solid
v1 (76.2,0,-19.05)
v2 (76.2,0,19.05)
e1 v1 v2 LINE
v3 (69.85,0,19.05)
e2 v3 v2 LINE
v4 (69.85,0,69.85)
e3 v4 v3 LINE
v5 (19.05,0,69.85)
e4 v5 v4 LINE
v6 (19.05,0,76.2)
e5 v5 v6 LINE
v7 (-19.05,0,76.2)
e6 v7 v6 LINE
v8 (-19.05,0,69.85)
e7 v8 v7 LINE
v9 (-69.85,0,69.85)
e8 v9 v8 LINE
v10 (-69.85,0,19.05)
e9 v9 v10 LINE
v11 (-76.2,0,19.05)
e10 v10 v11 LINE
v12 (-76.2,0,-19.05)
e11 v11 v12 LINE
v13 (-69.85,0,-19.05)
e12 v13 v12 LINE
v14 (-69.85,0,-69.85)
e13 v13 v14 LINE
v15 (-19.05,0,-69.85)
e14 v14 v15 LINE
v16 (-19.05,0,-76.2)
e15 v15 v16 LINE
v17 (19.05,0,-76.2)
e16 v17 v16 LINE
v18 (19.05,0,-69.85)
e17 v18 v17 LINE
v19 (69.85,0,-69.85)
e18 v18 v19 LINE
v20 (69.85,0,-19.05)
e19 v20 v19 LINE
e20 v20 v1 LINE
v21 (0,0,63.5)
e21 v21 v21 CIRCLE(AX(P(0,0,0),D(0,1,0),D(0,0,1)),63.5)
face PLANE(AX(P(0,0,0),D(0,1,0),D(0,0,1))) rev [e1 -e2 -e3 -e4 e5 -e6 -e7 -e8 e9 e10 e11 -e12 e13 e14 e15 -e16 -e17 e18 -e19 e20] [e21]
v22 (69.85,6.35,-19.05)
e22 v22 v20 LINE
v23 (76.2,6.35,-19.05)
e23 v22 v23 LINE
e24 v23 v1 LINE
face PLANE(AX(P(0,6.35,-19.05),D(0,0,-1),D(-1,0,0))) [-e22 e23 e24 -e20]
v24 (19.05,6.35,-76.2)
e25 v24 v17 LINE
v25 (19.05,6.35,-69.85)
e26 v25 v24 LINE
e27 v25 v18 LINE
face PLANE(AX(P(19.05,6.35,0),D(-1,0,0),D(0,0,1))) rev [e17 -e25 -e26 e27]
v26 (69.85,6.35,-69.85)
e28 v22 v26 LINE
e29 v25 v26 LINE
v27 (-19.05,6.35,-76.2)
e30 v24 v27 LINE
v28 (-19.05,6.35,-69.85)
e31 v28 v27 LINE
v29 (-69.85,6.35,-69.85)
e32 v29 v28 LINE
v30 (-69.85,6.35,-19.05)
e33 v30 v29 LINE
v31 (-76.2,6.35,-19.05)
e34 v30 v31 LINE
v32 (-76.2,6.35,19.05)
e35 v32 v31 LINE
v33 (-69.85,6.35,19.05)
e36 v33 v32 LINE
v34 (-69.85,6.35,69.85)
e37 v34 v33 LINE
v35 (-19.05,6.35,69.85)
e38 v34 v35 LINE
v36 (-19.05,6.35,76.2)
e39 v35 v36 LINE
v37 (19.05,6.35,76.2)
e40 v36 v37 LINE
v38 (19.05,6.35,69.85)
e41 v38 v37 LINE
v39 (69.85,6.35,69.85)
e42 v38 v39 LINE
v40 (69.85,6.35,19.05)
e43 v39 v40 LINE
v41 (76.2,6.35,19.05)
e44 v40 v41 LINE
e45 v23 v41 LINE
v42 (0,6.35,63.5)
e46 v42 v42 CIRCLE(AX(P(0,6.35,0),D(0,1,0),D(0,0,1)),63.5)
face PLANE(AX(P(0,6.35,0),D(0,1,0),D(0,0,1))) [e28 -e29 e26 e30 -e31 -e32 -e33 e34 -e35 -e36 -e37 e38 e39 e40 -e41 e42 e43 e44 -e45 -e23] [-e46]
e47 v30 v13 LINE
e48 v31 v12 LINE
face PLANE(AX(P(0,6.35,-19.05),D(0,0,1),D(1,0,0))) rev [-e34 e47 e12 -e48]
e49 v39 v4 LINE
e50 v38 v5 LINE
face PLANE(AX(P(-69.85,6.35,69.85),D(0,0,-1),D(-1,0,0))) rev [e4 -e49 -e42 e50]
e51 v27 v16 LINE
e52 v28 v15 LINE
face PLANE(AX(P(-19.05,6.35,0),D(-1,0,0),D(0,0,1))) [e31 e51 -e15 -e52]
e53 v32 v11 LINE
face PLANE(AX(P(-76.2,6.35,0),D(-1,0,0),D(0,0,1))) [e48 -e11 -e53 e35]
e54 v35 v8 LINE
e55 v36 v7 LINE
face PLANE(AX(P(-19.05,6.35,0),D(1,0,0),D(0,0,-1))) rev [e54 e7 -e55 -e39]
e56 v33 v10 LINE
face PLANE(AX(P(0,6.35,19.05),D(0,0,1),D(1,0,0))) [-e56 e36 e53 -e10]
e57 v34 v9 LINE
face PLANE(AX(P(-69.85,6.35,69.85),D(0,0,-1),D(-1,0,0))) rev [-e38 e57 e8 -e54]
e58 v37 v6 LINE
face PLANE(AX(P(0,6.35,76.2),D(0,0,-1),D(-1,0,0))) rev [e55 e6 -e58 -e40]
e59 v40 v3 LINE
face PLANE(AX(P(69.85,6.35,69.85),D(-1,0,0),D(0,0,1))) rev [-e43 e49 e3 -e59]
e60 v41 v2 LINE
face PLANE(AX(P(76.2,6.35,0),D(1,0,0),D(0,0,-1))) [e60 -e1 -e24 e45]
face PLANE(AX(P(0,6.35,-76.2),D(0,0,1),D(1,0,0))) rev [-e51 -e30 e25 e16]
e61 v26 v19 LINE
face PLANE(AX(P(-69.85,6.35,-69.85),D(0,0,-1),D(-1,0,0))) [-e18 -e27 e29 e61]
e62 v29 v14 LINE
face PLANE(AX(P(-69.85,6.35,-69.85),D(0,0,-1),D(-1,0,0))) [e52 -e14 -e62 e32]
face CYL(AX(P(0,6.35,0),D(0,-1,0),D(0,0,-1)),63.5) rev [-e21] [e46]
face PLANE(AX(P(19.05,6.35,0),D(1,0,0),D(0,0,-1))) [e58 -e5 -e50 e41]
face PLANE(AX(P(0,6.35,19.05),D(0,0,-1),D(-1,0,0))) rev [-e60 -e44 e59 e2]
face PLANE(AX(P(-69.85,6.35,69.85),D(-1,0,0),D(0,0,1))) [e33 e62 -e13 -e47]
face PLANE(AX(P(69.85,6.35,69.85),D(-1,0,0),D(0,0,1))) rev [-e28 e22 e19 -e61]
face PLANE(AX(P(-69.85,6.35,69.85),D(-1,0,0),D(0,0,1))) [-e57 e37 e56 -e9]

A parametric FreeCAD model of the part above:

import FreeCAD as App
import Part
import Sketcher
Q = App.Units.Quantity

doc = App.newDocument("Part")
params = doc.addObject("Spreadsheet::Sheet", "Params")
for row, (alias, value) in enumerate([
    ("sketch1_diameter", "5 in"),
    ("sketch1_width", "5.5 in"),
    ("pad1_length", "0.25 in"),
    ("sketch2_width", "1.5 in"),
    ("pad2_length", "0.25 in"),
], start=1):
    params.set(f"A{row}", alias)
    params.set(f"B{row}", "=" + value)
    params.setAlias(f"B{row}", alias)

body = doc.addObject("PartDesign::Body", "Body")

sketch1 = body.newObject("Sketcher::SketchObject", "Sketch")
sketch1.AttachmentSupport = (doc.getObject("XZ_Plane"), [""])
sketch1.MapMode = "FlatFace"
sketch1.addGeometry(Part.LineSegment(App.Vector(-69.85, -69.85, 0), App.Vector(-69.85, 69.85, 0)), False)
sketch1.addGeometry(Part.LineSegment(App.Vector(-69.85, 69.85, 0), App.Vector(69.85, 69.85, 0)), False)
sketch1.addGeometry(Part.LineSegment(App.Vector(69.85, 69.85, 0), App.Vector(69.85, -69.85, 0)), False)
sketch1.addGeometry(Part.LineSegment(App.Vector(69.85, -69.85, 0), App.Vector(-69.85, -69.85, 0)), False)
sketch1.addGeometry(Part.Circle(App.Vector(0, 0, 0), App.Vector(0, 0, 1), 63.5), False)
sketch1.addConstraint(Sketcher.Constraint("Coincident", 0, 2, 1, 1))
sketch1.addConstraint(Sketcher.Constraint("Coincident", 1, 2, 2, 1))
sketch1.addConstraint(Sketcher.Constraint("Coincident", 2, 2, 3, 1))
sketch1.addConstraint(Sketcher.Constraint("Coincident", 3, 2, 0, 1))
sketch1.addConstraint(Sketcher.Constraint("Vertical", 0))
sketch1.addConstraint(Sketcher.Constraint("Horizontal", 1))
sketch1.addConstraint(Sketcher.Constraint("Vertical", 2))
sketch1.addConstraint(Sketcher.Constraint("Horizontal", 3))
sketch1.addConstraint(Sketcher.Constraint("Coincident", 4, 3, -1, 1))
sketch1.addConstraint(Sketcher.Constraint("Symmetric", 0, 2, 2, 2, -1, 1))
sketch1.addConstraint(Sketcher.Constraint("Equal", 3, 0))
sketch1.addConstraint(Sketcher.Constraint("Diameter", 4, Q("5 in")))
sketch1.addConstraint(Sketcher.Constraint("DistanceX", 1, 1, 1, 2, Q("5.5 in")))
sketch1.setExpression("Constraints[11]", "Params.sketch1_diameter")
sketch1.setExpression("Constraints[12]", "Params.sketch1_width")
pad1 = body.newObject("PartDesign::Pad", "Pad")
pad1.Profile = sketch1
pad1.setExpression("Length", "Params.pad1_length")
pad1.Reversed = True

sketch2 = body.newObject("Sketcher::SketchObject", "Sketch001")
sketch2.AttachmentSupport = (doc.getObject("XZ_Plane"), [""])
sketch2.MapMode = "FlatFace"
sketch2.addGeometry(Part.LineSegment(App.Vector(-76.2, -19.05, 0), App.Vector(-76.2, 19.05, 0)), False)
sketch2.addGeometry(Part.LineSegment(App.Vector(-76.2, 19.05, 0), App.Vector(-69.85, 19.05, 0)), False)
sketch2.addGeometry(Part.LineSegment(App.Vector(-69.85, 19.05, 0), App.Vector(-69.85, -19.05, 0)), False)
sketch2.addGeometry(Part.LineSegment(App.Vector(-69.85, -19.05, 0), App.Vector(-76.2, -19.05, 0)), False)
sketch2.addGeometry(Part.LineSegment(App.Vector(-19.05, 69.85, 0), App.Vector(-19.05, 76.2, 0)), False)
sketch2.addGeometry(Part.LineSegment(App.Vector(-19.05, 76.2, 0), App.Vector(19.05, 76.2, 0)), False)
sketch2.addGeometry(Part.LineSegment(App.Vector(19.05, 76.2, 0), App.Vector(19.05, 69.85, 0)), False)
sketch2.addGeometry(Part.LineSegment(App.Vector(19.05, 69.85, 0), App.Vector(-19.05, 69.85, 0)), False)
sketch2.addGeometry(Part.LineSegment(App.Vector(69.85, -19.05, 0), App.Vector(69.85, 19.05, 0)), False)
sketch2.addGeometry(Part.LineSegment(App.Vector(69.85, 19.05, 0), App.Vector(76.2, 19.05, 0)), False)
sketch2.addGeometry(Part.LineSegment(App.Vector(76.2, 19.05, 0), App.Vector(76.2, -19.05, 0)), False)
sketch2.addGeometry(Part.LineSegment(App.Vector(76.2, -19.05, 0), App.Vector(69.85, -19.05, 0)), False)
sketch2.addGeometry(Part.LineSegment(App.Vector(-19.05, -76.2, 0), App.Vector(-19.05, -69.85, 0)), False)
sketch2.addGeometry(Part.LineSegment(App.Vector(-19.05, -69.85, 0), App.Vector(19.05, -69.85, 0)), False)
sketch2.addGeometry(Part.LineSegment(App.Vector(19.05, -69.85, 0), App.Vector(19.05, -76.2, 0)), False)
sketch2.addGeometry(Part.LineSegment(App.Vector(19.05, -76.2, 0), App.Vector(-19.05, -76.2, 0)), False)
sketch2.addConstraint(Sketcher.Constraint("Coincident", 0, 2, 1, 1))
sketch2.addConstraint(Sketcher.Constraint("Coincident", 1, 2, 2, 1))
sketch2.addConstraint(Sketcher.Constraint("Coincident", 2, 2, 3, 1))
sketch2.addConstraint(Sketcher.Constraint("Coincident", 3, 2, 0, 1))
sketch2.addConstraint(Sketcher.Constraint("Coincident", 4, 2, 5, 1))
sketch2.addConstraint(Sketcher.Constraint("Coincident", 5, 2, 6, 1))
sketch2.addConstraint(Sketcher.Constraint("Coincident", 6, 2, 7, 1))
sketch2.addConstraint(Sketcher.Constraint("Coincident", 7, 2, 4, 1))
sketch2.addConstraint(Sketcher.Constraint("Coincident", 8, 2, 9, 1))
sketch2.addConstraint(Sketcher.Constraint("Coincident", 9, 2, 10, 1))
sketch2.addConstraint(Sketcher.Constraint("Coincident", 10, 2, 11, 1))
sketch2.addConstraint(Sketcher.Constraint("Coincident", 11, 2, 8, 1))
sketch2.addConstraint(Sketcher.Constraint("Coincident", 12, 2, 13, 1))
sketch2.addConstraint(Sketcher.Constraint("Coincident", 13, 2, 14, 1))
sketch2.addConstraint(Sketcher.Constraint("Coincident", 14, 2, 15, 1))
sketch2.addConstraint(Sketcher.Constraint("Coincident", 15, 2, 12, 1))
sketch2.addConstraint(Sketcher.Constraint("Vertical", 0))
sketch2.addConstraint(Sketcher.Constraint("Horizontal", 1))
sketch2.addConstraint(Sketcher.Constraint("Vertical", 2))
sketch2.addConstraint(Sketcher.Constraint("Horizontal", 3))
sketch2.addConstraint(Sketcher.Constraint("Vertical", 4))
sketch2.addConstraint(Sketcher.Constraint("Horizontal", 5))
sketch2.addConstraint(Sketcher.Constraint("Vertical", 6))
sketch2.addConstraint(Sketcher.Constraint("Horizontal", 7))
sketch2.addConstraint(Sketcher.Constraint("Vertical", 8))
sketch2.addConstraint(Sketcher.Constraint("Horizontal", 9))
sketch2.addConstraint(Sketcher.Constraint("Vertical", 10))
sketch2.addConstraint(Sketcher.Constraint("Horizontal", 11))
sketch2.addConstraint(Sketcher.Constraint("Vertical", 12))
sketch2.addConstraint(Sketcher.Constraint("Horizontal", 13))
sketch2.addConstraint(Sketcher.Constraint("Vertical", 14))
sketch2.addConstraint(Sketcher.Constraint("Horizontal", 15))
sketch2.addConstraint(Sketcher.Constraint("Symmetric", 2, 2, 8, 2, -1, 1))
sketch2.addConstraint(Sketcher.Constraint("Symmetric", 0, 2, 10, 2, -1, 1))
sketch2.addConstraint(Sketcher.Constraint("Symmetric", 6, 2, 12, 2, -1, 1))
sketch2.addConstraint(Sketcher.Constraint("Symmetric", 4, 2, 14, 2, -1, 1))
sketch2.addConstraint(Sketcher.Constraint("Horizontal", 1, 2, 8, 2))
sketch2.addConstraint(Sketcher.Constraint("Vertical", 7, 2, 12, 2))
sketch2.addConstraint(Sketcher.Constraint("Equal", 15, 0))
sketch2.addConstraint(Sketcher.Constraint("Equal", 11, 4))
sketch2.addConstraint(Sketcher.Constraint("DistanceX", 5, 1, 5, 2, Q("1.5 in")))
sketch2.addConstraint(Sketcher.Constraint("DistanceX", 0, 2, -1, 1, Q("3 in")))
sketch2.addConstraint(Sketcher.Constraint("DistanceY", -1, 1, 4, 2, Q("3 in")))
sketch2.addConstraint(Sketcher.Constraint("DistanceX", 1, 2, 4, 2, Q("2 in")))
sketch2.setExpression("Constraints[40]", "Params.sketch2_width")
pad2 = body.newObject("PartDesign::Pad", "Pad001")
pad2.Profile = sketch2
pad2.setExpression("Length", "Params.pad2_length")
pad2.Reversed = True

doc.recompute()
